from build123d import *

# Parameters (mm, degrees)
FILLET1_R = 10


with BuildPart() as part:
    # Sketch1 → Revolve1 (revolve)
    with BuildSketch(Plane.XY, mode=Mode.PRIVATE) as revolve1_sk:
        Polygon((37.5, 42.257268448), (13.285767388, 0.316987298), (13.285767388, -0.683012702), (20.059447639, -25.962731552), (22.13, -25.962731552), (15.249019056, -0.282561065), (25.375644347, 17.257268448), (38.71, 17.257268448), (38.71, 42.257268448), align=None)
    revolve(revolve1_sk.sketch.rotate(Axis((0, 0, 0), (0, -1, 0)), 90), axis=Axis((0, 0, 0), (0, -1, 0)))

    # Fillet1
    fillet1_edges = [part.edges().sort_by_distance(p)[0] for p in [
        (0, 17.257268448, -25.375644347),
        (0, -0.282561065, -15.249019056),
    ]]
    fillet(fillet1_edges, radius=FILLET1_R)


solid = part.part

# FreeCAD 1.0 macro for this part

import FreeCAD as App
import Part
import Sketcher
from FreeCAD import Vector
Q = App.Units.Quantity


def edges_at(feature, points):
    """Names of the edges that pass closest to the given points."""
    edges = feature.Shape.Edges
    near = lambda p: min(range(len(edges)), key=lambda i: edges[i].distToShape(Part.Vertex(*p))[0])
    return sorted({f"Edge{near(p) + 1}" for p in points})

doc = App.newDocument("Part")
body = doc.addObject("PartDesign::Body", "Body")

# Sketch on XY plane
sketch1 = body.newObject("Sketcher::SketchObject", "Sketch")
sketch1.AttachmentSupport = (doc.getObject("XY_Plane"), [""])
sketch1.MapMode = "FlatFace"
sketch1.addGeometry(Part.LineSegment(Vector(37.5, 42.3, 0), Vector(13.3, 0.3, 0)), False)
sketch1.addGeometry(Part.LineSegment(Vector(13.3, 0.3, 0), Vector(13.3, -0.7, 0)), False)
sketch1.addGeometry(Part.LineSegment(Vector(13.3, -0.7, 0), Vector(20.1, -26, 0)), False)
sketch1.addGeometry(Part.LineSegment(Vector(20.1, -26, 0), Vector(22.1, -26, 0)), False)
sketch1.addGeometry(Part.LineSegment(Vector(22.1, -26, 0), Vector(15.2, -0.3, 0)), False)
sketch1.addGeometry(Part.LineSegment(Vector(15.2, -0.3, 0), Vector(25.4, 17.3, 0)), False)
sketch1.addGeometry(Part.LineSegment(Vector(25.4, 17.3, 0), Vector(38.7, 17.3, 0)), False)
sketch1.addGeometry(Part.LineSegment(Vector(38.7, 17.3, 0), Vector(38.7, 42.3, 0)), False)
sketch1.addGeometry(Part.LineSegment(Vector(38.7, 42.3, 0), Vector(37.5, 42.3, 0)), False)
sketch1.addConstraint(Sketcher.Constraint("Coincident", 0, 2, 1, 1))
sketch1.addConstraint(Sketcher.Constraint("Coincident", 1, 2, 2, 1))
sketch1.addConstraint(Sketcher.Constraint("Coincident", 2, 2, 3, 1))
sketch1.addConstraint(Sketcher.Constraint("Coincident", 3, 2, 4, 1))
sketch1.addConstraint(Sketcher.Constraint("Coincident", 4, 2, 5, 1))
sketch1.addConstraint(Sketcher.Constraint("Coincident", 5, 2, 6, 1))
sketch1.addConstraint(Sketcher.Constraint("Coincident", 6, 2, 7, 1))
sketch1.addConstraint(Sketcher.Constraint("Coincident", 7, 2, 8, 1))
sketch1.addConstraint(Sketcher.Constraint("Coincident", 8, 2, 0, 1))
sketch1.addConstraint(Sketcher.Constraint("Vertical", 1))
sketch1.addConstraint(Sketcher.Constraint("Horizontal", 3))
sketch1.addConstraint(Sketcher.Constraint("Horizontal", 6))
sketch1.addConstraint(Sketcher.Constraint("Vertical", 7))
sketch1.addConstraint(Sketcher.Constraint("Horizontal", 8))
sketch1.addConstraint(Sketcher.Constraint("Parallel", 2, 4))
sketch1.addConstraint(Sketcher.Constraint("Parallel", 0, 5))
sketch1.addConstraint(Sketcher.Constraint("DistanceY", 1, 2, 1, 1, 1.0))
sketch1.addConstraint(Sketcher.Constraint("DistanceY", 7, 1, 7, 2, 25.0))
sketch1.addConstraint(Sketcher.Constraint("Angle", 0, Q("-120 deg")))
sketch1.addConstraint(Sketcher.Constraint("Angle", 2, Q("-75 deg")))
sketch1.addConstraint(Sketcher.Constraint("DistanceX", 8, 2, 8, 1, 1.21))
sketch1.addConstraint(Sketcher.Constraint("DistanceX", -1, 1, 8, 2, 37.5))
sketch1.addConstraint(Sketcher.Constraint("DistanceX", -1, 1, 3, 2, 22.13))
sketch1.addConstraint(Sketcher.Constraint("DistanceY", 3, 2, 5, 2, 43.22))
sketch1.addConstraint(Sketcher.Constraint("Distance", 2, 26.171491))
sketch1.addConstraint(Sketcher.Constraint("Distance", 4, 26.586069))
sketch1.addConstraint(Sketcher.Constraint("DistanceY", 2, 2, -1, 1, 25.962732))
revolution = body.newObject("PartDesign::Revolution", "Revolution")
revolution.Profile = sketch1
revolution.ReferenceAxis = (sketch1, ["V_Axis"])
revolution.Angle = 360
doc.recompute()

fillet = body.newObject("PartDesign::Fillet", "Fillet")
fillet.Base = (revolution, edges_at(revolution, [(0, 17.257, -25.376), (0, -0.283, -15.249)]))
fillet.Radius = 10

doc.recompute()
